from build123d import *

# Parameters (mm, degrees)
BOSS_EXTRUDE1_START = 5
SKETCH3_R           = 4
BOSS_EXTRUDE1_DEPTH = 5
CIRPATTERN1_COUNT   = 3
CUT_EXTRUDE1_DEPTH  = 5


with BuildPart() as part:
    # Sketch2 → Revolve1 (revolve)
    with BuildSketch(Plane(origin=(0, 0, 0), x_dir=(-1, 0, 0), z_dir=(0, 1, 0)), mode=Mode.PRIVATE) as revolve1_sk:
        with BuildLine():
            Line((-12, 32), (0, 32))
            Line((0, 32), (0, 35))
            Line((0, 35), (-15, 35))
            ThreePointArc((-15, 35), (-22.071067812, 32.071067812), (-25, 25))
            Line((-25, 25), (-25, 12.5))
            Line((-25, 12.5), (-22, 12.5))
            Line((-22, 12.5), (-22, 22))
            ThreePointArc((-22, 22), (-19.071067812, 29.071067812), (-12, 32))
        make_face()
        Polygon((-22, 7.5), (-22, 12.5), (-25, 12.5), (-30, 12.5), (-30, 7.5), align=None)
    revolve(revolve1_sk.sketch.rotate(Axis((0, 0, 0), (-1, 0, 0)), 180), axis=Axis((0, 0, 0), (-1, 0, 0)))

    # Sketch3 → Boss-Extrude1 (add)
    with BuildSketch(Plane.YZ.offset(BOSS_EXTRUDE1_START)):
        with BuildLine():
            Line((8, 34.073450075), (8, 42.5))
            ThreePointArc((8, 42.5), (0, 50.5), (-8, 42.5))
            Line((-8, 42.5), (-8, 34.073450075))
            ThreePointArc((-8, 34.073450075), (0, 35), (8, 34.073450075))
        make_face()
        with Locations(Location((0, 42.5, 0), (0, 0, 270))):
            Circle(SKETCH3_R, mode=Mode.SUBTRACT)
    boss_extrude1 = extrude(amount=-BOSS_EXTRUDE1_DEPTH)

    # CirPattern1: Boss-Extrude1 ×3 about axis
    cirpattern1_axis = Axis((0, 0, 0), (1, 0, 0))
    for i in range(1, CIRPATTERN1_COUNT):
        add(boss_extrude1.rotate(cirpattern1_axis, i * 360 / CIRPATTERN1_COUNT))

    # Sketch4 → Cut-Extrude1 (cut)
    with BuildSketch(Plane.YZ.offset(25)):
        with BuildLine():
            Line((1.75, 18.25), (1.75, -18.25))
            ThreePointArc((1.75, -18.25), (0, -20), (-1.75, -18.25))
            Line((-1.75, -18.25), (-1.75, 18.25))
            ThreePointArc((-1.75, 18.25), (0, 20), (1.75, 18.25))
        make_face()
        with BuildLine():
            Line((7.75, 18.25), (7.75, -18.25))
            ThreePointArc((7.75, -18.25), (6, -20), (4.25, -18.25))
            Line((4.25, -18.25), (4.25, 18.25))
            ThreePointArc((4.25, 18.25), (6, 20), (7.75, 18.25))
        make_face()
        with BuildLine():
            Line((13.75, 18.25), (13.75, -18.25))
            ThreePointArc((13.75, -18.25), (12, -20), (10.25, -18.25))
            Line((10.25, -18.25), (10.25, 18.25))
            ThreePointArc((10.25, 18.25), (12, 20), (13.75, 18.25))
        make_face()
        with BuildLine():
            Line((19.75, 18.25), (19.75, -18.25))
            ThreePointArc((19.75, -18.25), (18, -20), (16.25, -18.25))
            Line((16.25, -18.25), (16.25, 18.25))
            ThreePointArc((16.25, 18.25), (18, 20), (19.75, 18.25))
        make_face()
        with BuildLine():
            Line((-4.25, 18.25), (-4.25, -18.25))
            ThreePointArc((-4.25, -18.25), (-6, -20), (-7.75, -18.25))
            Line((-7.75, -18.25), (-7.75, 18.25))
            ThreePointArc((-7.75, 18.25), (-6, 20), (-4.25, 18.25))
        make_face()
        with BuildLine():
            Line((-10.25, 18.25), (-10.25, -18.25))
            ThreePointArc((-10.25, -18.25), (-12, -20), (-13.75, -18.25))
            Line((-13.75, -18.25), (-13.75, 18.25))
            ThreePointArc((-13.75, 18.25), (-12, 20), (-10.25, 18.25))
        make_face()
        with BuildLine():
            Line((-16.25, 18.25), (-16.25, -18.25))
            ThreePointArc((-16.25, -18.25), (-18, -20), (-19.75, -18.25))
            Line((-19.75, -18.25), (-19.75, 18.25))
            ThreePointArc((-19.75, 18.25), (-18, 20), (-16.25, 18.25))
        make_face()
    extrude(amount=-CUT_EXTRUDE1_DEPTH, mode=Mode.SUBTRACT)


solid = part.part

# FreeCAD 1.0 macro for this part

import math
import FreeCAD as App
import Part
import Sketcher
from FreeCAD import Vector

doc = App.newDocument("Part")
body = doc.addObject("PartDesign::Body", "Body")

# Sketch on XZ plane
sketch1 = body.newObject("Sketcher::SketchObject", "Sketch")
sketch1.AttachmentSupport = (doc.getObject("XZ_Plane"), [""])
sketch1.MapMode = "FlatFace"
sketch1.addGeometry(Part.LineSegment(Vector(12, 32, 0), Vector(0, 32, 0)), False)
sketch1.addGeometry(Part.LineSegment(Vector(0, 32, 0), Vector(0, 35, 0)), False)
sketch1.addGeometry(Part.LineSegment(Vector(0, 35, 0), Vector(15, 35, 0)), False)
sketch1.addGeometry(Part.ArcOfCircle(Part.Circle(Vector(15, 25, 0), Vector(0, 0, 1), 10), math.radians(0), math.radians(90)), False)
sketch1.addGeometry(Part.LineSegment(Vector(25, 25, 0), Vector(25, 12.5, 0)), False)
sketch1.addGeometry(Part.LineSegment(Vector(25, 12.5, 0), Vector(30, 12.5, 0)), False)
sketch1.addGeometry(Part.LineSegment(Vector(30, 12.5, 0), Vector(30, 7.5, 0)), False)
sketch1.addGeometry(Part.LineSegment(Vector(30, 7.5, 0), Vector(22, 7.5, 0)), False)
sketch1.addGeometry(Part.LineSegment(Vector(22, 7.5, 0), Vector(22, 22, 0)), False)
sketch1.addGeometry(Part.ArcOfCircle(Part.Circle(Vector(12, 22, 0), Vector(0, 0, 1), 10), math.radians(0), math.radians(90)), False)
sketch1.addConstraint(Sketcher.Constraint("Coincident", 0, 2, 1, 1))
sketch1.addConstraint(Sketcher.Constraint("Coincident", 1, 2, 2, 1))
sketch1.addConstraint(Sketcher.Constraint("Tangent", 2, 2, 3, 2))
sketch1.addConstraint(Sketcher.Constraint("Tangent", 3, 1, 4, 1))
sketch1.addConstraint(Sketcher.Constraint("Coincident", 4, 2, 5, 1))
sketch1.addConstraint(Sketcher.Constraint("Coincident", 5, 2, 6, 1))
sketch1.addConstraint(Sketcher.Constraint("Coincident", 6, 2, 7, 1))
sketch1.addConstraint(Sketcher.Constraint("Coincident", 7, 2, 8, 1))
sketch1.addConstraint(Sketcher.Constraint("Tangent", 8, 2, 9, 1))
sketch1.addConstraint(Sketcher.Constraint("Tangent", 9, 2, 0, 1))
sketch1.addConstraint(Sketcher.Constraint("Horizontal", 0))
sketch1.addConstraint(Sketcher.Constraint("Vertical", 1))
sketch1.addConstraint(Sketcher.Constraint("Horizontal", 2))
sketch1.addConstraint(Sketcher.Constraint("Vertical", 4))
sketch1.addConstraint(Sketcher.Constraint("Horizontal", 5))
sketch1.addConstraint(Sketcher.Constraint("Vertical", 6))
sketch1.addConstraint(Sketcher.Constraint("Horizontal", 7))
sketch1.addConstraint(Sketcher.Constraint("Vertical", 8))
sketch1.addConstraint(Sketcher.Constraint("Equal", 3, 9))
sketch1.addConstraint(Sketcher.Constraint("PointOnObject", 0, 2, -2))
sketch1.addConstraint(Sketcher.Constraint("Equal", 5, 6))
sketch1.addConstraint(Sketcher.Constraint("Radius", 3, 10.0))
sketch1.addConstraint(Sketcher.Constraint("DistanceX", 0, 2, 0, 1, 12.0))
sketch1.addConstraint(Sketcher.Constraint("DistanceX", 2, 1, 2, 2, 15.0))
sketch1.addConstraint(Sketcher.Constraint("DistanceX", 5, 1, 5, 2, 5.0))
sketch1.addConstraint(Sketcher.Constraint("DistanceY", 1, 1, 1, 2, 3.0))
sketch1.addConstraint(Sketcher.Constraint("DistanceY", 4, 2, 4, 1, 12.5))
sketch1.addConstraint(Sketcher.Constraint("DistanceY", -1, 1, 3, 3, 25.0))
revolution = body.newObject("PartDesign::Revolution", "Revolution")
revolution.Profile = sketch1
revolution.ReferenceAxis = (sketch1, ["H_Axis"])
revolution.Angle = 360

# Sketch on YZ plane
sketch2 = body.newObject("Sketcher::SketchObject", "Sketch001")
sketch2.AttachmentSupport = (doc.getObject("YZ_Plane"), [""])
sketch2.MapMode = "FlatFace"
sketch2.AttachmentOffset = App.Placement(Vector(0, 0, 5), App.Rotation())
sketch2.addGeometry(Part.LineSegment(Vector(8, 34.07345, 0), Vector(8, 42.5, 0)), False)
sketch2.addGeometry(Part.ArcOfCircle(Part.Circle(Vector(0, 42.5, 0), Vector(0, 0, 1), 8), math.radians(0), math.radians(180)), False)
sketch2.addGeometry(Part.LineSegment(Vector(-8, 42.5, 0), Vector(-8, 34.07345, 0)), False)
sketch2.addGeometry(Part.ArcOfCircle(Part.Circle(Vector(0, 0, 0), Vector(0, 0, 1), 35), math.radians(76.78702), math.radians(103.21298)), False)
sketch2.addGeometry(Part.Circle(Vector(0, 42.5, 0), Vector(0, 0, 1), 4), False)
sketch2.addConstraint(Sketcher.Constraint("Tangent", 0, 2, 1, 1))
sketch2.addConstraint(Sketcher.Constraint("Tangent", 1, 2, 2, 1))
sketch2.addConstraint(Sketcher.Constraint("Coincident", 2, 2, 3, 2))
sketch2.addConstraint(Sketcher.Constraint("Coincident", 3, 1, 0, 1))
sketch2.addConstraint(Sketcher.Constraint("Vertical", 0))
sketch2.addConstraint(Sketcher.Constraint("Vertical", 2))
sketch2.addConstraint(Sketcher.Constraint("Coincident", 3, 3, -1, 1))
sketch2.addConstraint(Sketcher.Constraint("Coincident", 4, 3, 1, 3))
sketch2.addConstraint(Sketcher.Constraint("PointOnObject", 1, 3, -2))
sketch2.addConstraint(Sketcher.Constraint("Diameter", 4, 8.0))
sketch2.addConstraint(Sketcher.Constraint("Radius", 1, 8.0))
sketch2.addConstraint(Sketcher.Constraint("Radius", 3, 35.0))
sketch2.addConstraint(Sketcher.Constraint("DistanceY", -1, 1, 1, 3, 42.5))
pad1 = body.newObject("PartDesign::Pad", "Pad")
pad1.Profile = sketch2
pad1.Length = 5
pad1.Reversed = True
doc.recompute()

polarpattern = body.newObject("PartDesign::PolarPattern", "PolarPattern")
polarpattern.Originals = [pad1]
polarpattern.Axis = (doc.getObject("X_Axis"), [""])
polarpattern.Angle = 360
polarpattern.Occurrences = 3
body.Tip = polarpattern

# Sketch on YZ plane
sketch3 = body.newObject("Sketcher::SketchObject", "Sketch002")
sketch3.AttachmentSupport = (doc.getObject("YZ_Plane"), [""])
sketch3.MapMode = "FlatFace"
sketch3.AttachmentOffset = App.Placement(Vector(0, 0, 25), App.Rotation())
sketch3.addGeometry(Part.LineSegment(Vector(1.75, -18.25, 0), Vector(1.75, 18.25, 0)), False)
sketch3.addGeometry(Part.ArcOfCircle(Part.Circle(Vector(0, 18.25, 0), Vector(0, 0, 1), 1.75), math.radians(0), math.radians(180)), False)
sketch3.addGeometry(Part.LineSegment(Vector(-1.75, 18.25, 0), Vector(-1.75, -18.25, 0)), False)
sketch3.addGeometry(Part.ArcOfCircle(Part.Circle(Vector(0, -18.25, 0), Vector(0, 0, 1), 1.75), math.radians(180), math.radians(360)), False)
sketch3.addGeometry(Part.LineSegment(Vector(7.75, -18.25, 0), Vector(7.75, 18.25, 0)), False)
sketch3.addGeometry(Part.ArcOfCircle(Part.Circle(Vector(6, 18.25, 0), Vector(0, 0, 1), 1.75), math.radians(0), math.radians(180)), False)
sketch3.addGeometry(Part.LineSegment(Vector(4.25, 18.25, 0), Vector(4.25, -18.25, 0)), False)
sketch3.addGeometry(Part.ArcOfCircle(Part.Circle(Vector(6, -18.25, 0), Vector(0, 0, 1), 1.75), math.radians(180), math.radians(360)), False)
sketch3.addGeometry(Part.LineSegment(Vector(13.75, -18.25, 0), Vector(13.75, 18.25, 0)), False)
sketch3.addGeometry(Part.ArcOfCircle(Part.Circle(Vector(12, 18.25, 0), Vector(0, 0, 1), 1.75), math.radians(0), math.radians(180)), False)
sketch3.addGeometry(Part.LineSegment(Vector(10.25, 18.25, 0), Vector(10.25, -18.25, 0)), False)
sketch3.addGeometry(Part.ArcOfCircle(Part.Circle(Vector(12, -18.25, 0), Vector(0, 0, 1), 1.75), math.radians(180), math.radians(360)), False)
sketch3.addGeometry(Part.LineSegment(Vector(19.75, -18.25, 0), Vector(19.75, 18.25, 0)), False)
sketch3.addGeometry(Part.ArcOfCircle(Part.Circle(Vector(18, 18.25, 0), Vector(0, 0, 1), 1.75), math.radians(0), math.radians(180)), False)
sketch3.addGeometry(Part.LineSegment(Vector(16.25, 18.25, 0), Vector(16.25, -18.25, 0)), False)
sketch3.addGeometry(Part.ArcOfCircle(Part.Circle(Vector(18, -18.25, 0), Vector(0, 0, 1), 1.75), math.radians(180), math.radians(360)), False)
sketch3.addGeometry(Part.LineSegment(Vector(-4.25, -18.25, 0), Vector(-4.25, 18.25, 0)), False)
sketch3.addGeometry(Part.ArcOfCircle(Part.Circle(Vector(-6, 18.25, 0), Vector(0, 0, 1), 1.75), math.radians(0), math.radians(180)), False)
sketch3.addGeometry(Part.LineSegment(Vector(-7.75, 18.25, 0), Vector(-7.75, -18.25, 0)), False)
sketch3.addGeometry(Part.ArcOfCircle(Part.Circle(Vector(-6, -18.25, 0), Vector(0, 0, 1), 1.75), math.radians(180), math.radians(360)), False)
sketch3.addGeometry(Part.LineSegment(Vector(-10.25, -18.25, 0), Vector(-10.25, 18.25, 0)), False)
sketch3.addGeometry(Part.ArcOfCircle(Part.Circle(Vector(-12, 18.25, 0), Vector(0, 0, 1), 1.75), math.radians(0), math.radians(180)), False)
sketch3.addGeometry(Part.LineSegment(Vector(-13.75, 18.25, 0), Vector(-13.75, -18.25, 0)), False)
sketch3.addGeometry(Part.ArcOfCircle(Part.Circle(Vector(-12, -18.25, 0), Vector(0, 0, 1), 1.75), math.radians(180), math.radians(360)), False)
sketch3.addGeometry(Part.LineSegment(Vector(-16.25, -18.25, 0), Vector(-16.25, 18.25, 0)), False)
sketch3.addGeometry(Part.ArcOfCircle(Part.Circle(Vector(-18, 18.25, 0), Vector(0, 0, 1), 1.75), math.radians(0), math.radians(180)), False)
sketch3.addGeometry(Part.LineSegment(Vector(-19.75, 18.25, 0), Vector(-19.75, -18.25, 0)), False)
sketch3.addGeometry(Part.ArcOfCircle(Part.Circle(Vector(-18, -18.25, 0), Vector(0, 0, 1), 1.75), math.radians(180), math.radians(360)), False)
sketch3.addConstraint(Sketcher.Constraint("Tangent", 0, 2, 1, 1))
sketch3.addConstraint(Sketcher.Constraint("Tangent", 1, 2, 2, 1))
sketch3.addConstraint(Sketcher.Constraint("Tangent", 2, 2, 3, 1))
sketch3.addConstraint(Sketcher.Constraint("Tangent", 3, 2, 0, 1))
sketch3.addConstraint(Sketcher.Constraint("Tangent", 4, 2, 5, 1))
sketch3.addConstraint(Sketcher.Constraint("Tangent", 5, 2, 6, 1))
sketch3.addConstraint(Sketcher.Constraint("Tangent", 6, 2, 7, 1))
sketch3.addConstraint(Sketcher.Constraint("Tangent", 7, 2, 4, 1))
sketch3.addConstraint(Sketcher.Constraint("Tangent", 8, 2, 9, 1))
sketch3.addConstraint(Sketcher.Constraint("Tangent", 9, 2, 10, 1))
sketch3.addConstraint(Sketcher.Constraint("Tangent", 10, 2, 11, 1))
sketch3.addConstraint(Sketcher.Constraint("Tangent", 11, 2, 8, 1))
sketch3.addConstraint(Sketcher.Constraint("Tangent", 12, 2, 13, 1))
sketch3.addConstraint(Sketcher.Constraint("Tangent", 13, 2, 14, 1))
sketch3.addConstraint(Sketcher.Constraint("Tangent", 14, 2, 15, 1))
sketch3.addConstraint(Sketcher.Constraint("Tangent", 15, 2, 12, 1))
sketch3.addConstraint(Sketcher.Constraint("Tangent", 16, 2, 17, 1))
sketch3.addConstraint(Sketcher.Constraint("Tangent", 17, 2, 18, 1))
sketch3.addConstraint(Sketcher.Constraint("Tangent", 18, 2, 19, 1))
sketch3.addConstraint(Sketcher.Constraint("Tangent", 19, 2, 16, 1))
sketch3.addConstraint(Sketcher.Constraint("Tangent", 20, 2, 21, 1))
sketch3.addConstraint(Sketcher.Constraint("Tangent", 21, 2, 22, 1))
sketch3.addConstraint(Sketcher.Constraint("Tangent", 22, 2, 23, 1))
sketch3.addConstraint(Sketcher.Constraint("Tangent", 23, 2, 20, 1))
sketch3.addConstraint(Sketcher.Constraint("Tangent", 24, 2, 25, 1))
sketch3.addConstraint(Sketcher.Constraint("Tangent", 25, 2, 26, 1))
sketch3.addConstraint(Sketcher.Constraint("Tangent", 26, 2, 27, 1))
sketch3.addConstraint(Sketcher.Constraint("Tangent", 27, 2, 24, 1))
sketch3.addConstraint(Sketcher.Constraint("Vertical", 0))
sketch3.addConstraint(Sketcher.Constraint("Vertical", 2))
sketch3.addConstraint(Sketcher.Constraint("Vertical", 4))
sketch3.addConstraint(Sketcher.Constraint("Vertical", 6))
sketch3.addConstraint(Sketcher.Constraint("Vertical", 8))
sketch3.addConstraint(Sketcher.Constraint("Vertical", 10))
sketch3.addConstraint(Sketcher.Constraint("Vertical", 12))
sketch3.addConstraint(Sketcher.Constraint("Vertical", 14))
sketch3.addConstraint(Sketcher.Constraint("Vertical", 16))
sketch3.addConstraint(Sketcher.Constraint("Vertical", 18))
sketch3.addConstraint(Sketcher.Constraint("Vertical", 20))
sketch3.addConstraint(Sketcher.Constraint("Vertical", 22))
sketch3.addConstraint(Sketcher.Constraint("Vertical", 24))
sketch3.addConstraint(Sketcher.Constraint("Vertical", 26))
sketch3.addConstraint(Sketcher.Constraint("Equal", 3, 5))
sketch3.addConstraint(Sketcher.Constraint("Equal", 7, 9))
sketch3.addConstraint(Sketcher.Constraint("Equal", 11, 13))
sketch3.addConstraint(Sketcher.Constraint("Equal", 15, 17))
sketch3.addConstraint(Sketcher.Constraint("Equal", 19, 21))
sketch3.addConstraint(Sketcher.Constraint("Equal", 23, 25))
sketch3.addConstraint(Sketcher.Constraint("Symmetric", 1, 3, 3, 3, -1, 1))
sketch3.addConstraint(Sketcher.Constraint("Symmetric", 7, 3, 17, 3, -1, 1))
sketch3.addConstraint(Sketcher.Constraint("Symmetric", 11, 3, 21, 3, -1, 1))
sketch3.addConstraint(Sketcher.Constraint("Symmetric", 15, 3, 25, 3, -1, 1))
sketch3.addConstraint(Sketcher.Constraint("Horizontal", 1, 3, 5, 3))
sketch3.addConstraint(Sketcher.Constraint("Horizontal", 3, 3, 7, 3))
sketch3.addConstraint(Sketcher.Constraint("Horizontal", 5, 3, 9, 3))
sketch3.addConstraint(Sketcher.Constraint("Horizontal", 7, 3, 11, 3))
sketch3.addConstraint(Sketcher.Constraint("Horizontal", 9, 3, 13, 3))
sketch3.addConstraint(Sketcher.Constraint("Horizontal", 11, 3, 15, 3))
sketch3.addConstraint(Sketcher.Constraint("Horizontal", 15, 3, 19, 3))
sketch3.addConstraint(Sketcher.Constraint("Horizontal", 19, 3, 23, 3))
sketch3.addConstraint(Sketcher.Constraint("Horizontal", 23, 3, 27, 3))
sketch3.addConstraint(Sketcher.Constraint("Radius", 1, 1.75))
sketch3.addConstraint(Sketcher.Constraint("DistanceY", 0, 1, 0, 2, 36.5))
sketch3.addConstraint(Sketcher.Constraint("DistanceX", -1, 1, 5, 3, 6.0))
sketch3.addConstraint(Sketcher.Constraint("DistanceX", -1, 1, 9, 3, 12.0))
sketch3.addConstraint(Sketcher.Constraint("DistanceX", -1, 1, 13, 3, 18.0))
pocket1 = body.newObject("PartDesign::Pocket", "Pocket")
pocket1.Profile = sketch3
pocket1.Length = 5

doc.recompute()
